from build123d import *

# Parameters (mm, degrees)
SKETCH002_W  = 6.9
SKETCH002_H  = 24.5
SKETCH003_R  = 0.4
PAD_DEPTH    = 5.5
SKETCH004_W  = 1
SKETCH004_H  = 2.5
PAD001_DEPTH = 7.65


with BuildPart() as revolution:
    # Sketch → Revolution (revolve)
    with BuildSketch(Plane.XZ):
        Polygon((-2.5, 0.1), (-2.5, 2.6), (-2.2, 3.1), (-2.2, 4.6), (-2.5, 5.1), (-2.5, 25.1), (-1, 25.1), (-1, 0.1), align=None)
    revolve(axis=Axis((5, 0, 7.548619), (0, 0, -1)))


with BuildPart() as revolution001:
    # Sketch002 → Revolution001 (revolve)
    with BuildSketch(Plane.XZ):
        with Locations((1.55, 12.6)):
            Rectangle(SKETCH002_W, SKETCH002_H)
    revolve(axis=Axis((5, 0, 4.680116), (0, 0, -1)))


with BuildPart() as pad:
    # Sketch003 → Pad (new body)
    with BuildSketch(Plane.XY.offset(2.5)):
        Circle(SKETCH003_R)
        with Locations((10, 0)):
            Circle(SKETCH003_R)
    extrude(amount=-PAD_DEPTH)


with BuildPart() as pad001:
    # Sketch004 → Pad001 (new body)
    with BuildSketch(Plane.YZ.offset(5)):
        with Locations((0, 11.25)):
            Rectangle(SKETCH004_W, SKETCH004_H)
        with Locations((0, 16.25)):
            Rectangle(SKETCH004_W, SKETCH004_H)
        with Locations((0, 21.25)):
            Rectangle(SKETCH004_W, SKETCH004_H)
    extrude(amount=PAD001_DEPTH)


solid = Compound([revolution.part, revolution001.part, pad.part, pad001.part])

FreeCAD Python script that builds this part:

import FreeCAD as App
import Part
import Sketcher
from FreeCAD import Vector


def add_polygon(sketch, points):
    """Adds a closed chain of lines whose ends are joined by coincident constraints."""
    first, n = sketch.GeometryCount, len(points)
    for a, b in zip(points, points[1:] + points[:1]):
        sketch.addGeometry(Part.LineSegment(App.Vector(*a, 0), App.Vector(*b, 0)), False)
    for i in range(n):
        sketch.addConstraint(Sketcher.Constraint("Coincident", first + i, 2, first + (i + 1) % n, 1))

doc = App.newDocument("Part")
body = doc.addObject("PartDesign::Body", "Body")

# Sketch on XZ plane
sketch1 = body.newObject("Sketcher::SketchObject", "Sketch")
sketch1.AttachmentSupport = (doc.getObject("XZ_Plane"), [""])
sketch1.MapMode = "FlatFace"
add_polygon(sketch1, [(-2.5, 2.6), (-2.5, 0.1), (-1, 0.1), (-1, 25.1), (-2.5, 25.1), (-2.5, 5.1), (-2.2, 4.6), (-2.2, 3.1)])  # lines 0-7
sketch1.addGeometry(Part.LineSegment(Vector(5, 25.1, 0), Vector(5, 0.1, 0)), True)  # axis
sketch1.addConstraint(Sketcher.Constraint("Vertical", 0))
sketch1.addConstraint(Sketcher.Constraint("Horizontal", 1))
sketch1.addConstraint(Sketcher.Constraint("Vertical", 2))
sketch1.addConstraint(Sketcher.Constraint("Horizontal", 3))
sketch1.addConstraint(Sketcher.Constraint("Vertical", 4))
sketch1.addConstraint(Sketcher.Constraint("Vertical", 6))
sketch1.addConstraint(Sketcher.Constraint("Vertical", 8))
sketch1.addConstraint(Sketcher.Constraint("Horizontal", 3, 2, 8, 1))
sketch1.addConstraint(Sketcher.Constraint("Horizontal", 1, 2, 8, 2))
sketch1.addConstraint(Sketcher.Constraint("Vertical", 0, 2, 3, 2))
sketch1.addConstraint(Sketcher.Constraint("Equal", 3, 6))
sketch1.addConstraint(Sketcher.Constraint("Equal", 5, 7))
sketch1.addConstraint(Sketcher.Constraint("DistanceY", 2, 1, 2, 2, 25.0))
sketch1.addConstraint(Sketcher.Constraint("DistanceY", 4, 2, 4, 1, 20.0))
sketch1.addConstraint(Sketcher.Constraint("DistanceX", 1, 1, 1, 2, 1.5))
sketch1.addConstraint(Sketcher.Constraint("DistanceY", 0, 2, 0, 1, 2.5))
sketch1.addConstraint(Sketcher.Constraint("DistanceX", 1, 2, -1, 1, 1.0))
sketch1.addConstraint(Sketcher.Constraint("DistanceX", -1, 1, 8, 1, 5.0))
sketch1.addConstraint(Sketcher.Constraint("DistanceY", -1, 1, 0, 2, 0.1))
sketch1.addConstraint(Sketcher.Constraint("DistanceX", 5, 2, -1, 1, 2.2))
revolution = body.newObject("PartDesign::Revolution", "Revolution")
revolution.Profile = sketch1
revolution.ReferenceAxis = (sketch1, ["Axis0"])
revolution.Angle = 360
body2 = doc.addObject("PartDesign::Body", "Body001")

# Sketch on XZ plane
sketch2 = body2.newObject("Sketcher::SketchObject", "Sketch001")
sketch2.AttachmentSupport = (doc.getObject("XZ_Plane001"), [""])
sketch2.MapMode = "FlatFace"
add_polygon(sketch2, [(-2, 25), (-2, 0), (5, 0), (5, 25)])  # lines 0-3
sketch2.addGeometry(Part.LineSegment(Vector(5, 25, 0), Vector(5, 0, 0)), True)  # axis
sketch2.addConstraint(Sketcher.Constraint("Vertical", 0))
sketch2.addConstraint(Sketcher.Constraint("Horizontal", 1))
sketch2.addConstraint(Sketcher.Constraint("Vertical", 2))
sketch2.addConstraint(Sketcher.Constraint("Horizontal", 3))
sketch2.addConstraint(Sketcher.Constraint("Vertical", 4))
sketch2.addConstraint(Sketcher.Constraint("Coincident", 4, 1, 2, 2))
sketch2.addConstraint(Sketcher.Constraint("Horizontal", 0, 2, 4, 2))
sketch2.addConstraint(Sketcher.Constraint("DistanceX", 1, 1, 1, 2, 6.9))
sketch2.addConstraint(Sketcher.Constraint("DistanceY", 0, 2, 0, 1, 24.5))
sketch2.addConstraint(Sketcher.Constraint("DistanceX", -1, 1, 1, 2, 5.0))
sketch2.addConstraint(Sketcher.Constraint("DistanceY", -1, 1, 0, 2, 0.35))
revolution2 = body2.newObject("PartDesign::Revolution", "Revolution001")
revolution2.Profile = sketch2
revolution2.ReferenceAxis = (sketch2, ["Axis0"])
revolution2.Angle = 360
body3 = doc.addObject("PartDesign::Body", "Body002")
body3.AllowCompound = True

# Sketch on XY plane
sketch3 = body3.newObject("Sketcher::SketchObject", "Sketch002")
sketch3.AttachmentSupport = (doc.getObject("XY_Plane002"), [""])
sketch3.MapMode = "FlatFace"
sketch3.AttachmentOffset = App.Placement(Vector(0, 0, 2.5), App.Rotation())
sketch3.addGeometry(Part.Circle(Vector(0, 0, 0), Vector(0, 0, 1), 0.4), False)
sketch3.addGeometry(Part.Circle(Vector(10, 0, 0), Vector(0, 0, 1), 0.4), False)
sketch3.addConstraint(Sketcher.Constraint("Coincident", 0, 3, -1, 1))
sketch3.addConstraint(Sketcher.Constraint("Equal", 0, 1))
sketch3.addConstraint(Sketcher.Constraint("PointOnObject", 1, 3, -1))
sketch3.addConstraint(Sketcher.Constraint("Diameter", 0, 0.8))
sketch3.addConstraint(Sketcher.Constraint("DistanceX", -1, 1, 1, 3, 10.0))
pad1 = body3.newObject("PartDesign::Pad", "Pad")
pad1.Profile = sketch3
pad1.Length = 5.5
pad1.Reversed = True
body4 = doc.addObject("PartDesign::Body", "Body003")
body4.AllowCompound = True

# Sketch on YZ plane
sketch4 = body4.newObject("Sketcher::SketchObject", "Sketch003")
sketch4.AttachmentSupport = (doc.getObject("YZ_Plane003"), [""])
sketch4.MapMode = "FlatFace"
sketch4.AttachmentOffset = App.Placement(Vector(0, 0, 5), App.Rotation())
add_polygon(sketch4, [(-0.5, 12.5), (-0.5, 10), (0.5, 10), (0.5, 12.5)])  # lines 0-3
add_polygon(sketch4, [(-0.5, 17.5), (-0.5, 15), (0.5, 15), (0.5, 17.5)])  # lines 4-7
add_polygon(sketch4, [(-0.5, 22.5), (-0.5, 20), (0.5, 20), (0.5, 22.5)])  # lines 8-11
sketch4.addConstraint(Sketcher.Constraint("Vertical", 0))
sketch4.addConstraint(Sketcher.Constraint("Horizontal", 1))
sketch4.addConstraint(Sketcher.Constraint("Vertical", 2))
sketch4.addConstraint(Sketcher.Constraint("Horizontal", 3))
sketch4.addConstraint(Sketcher.Constraint("Vertical", 4))
sketch4.addConstraint(Sketcher.Constraint("Horizontal", 5))
sketch4.addConstraint(Sketcher.Constraint("Vertical", 6))
sketch4.addConstraint(Sketcher.Constraint("Horizontal", 7))
sketch4.addConstraint(Sketcher.Constraint("Vertical", 8))
sketch4.addConstraint(Sketcher.Constraint("Horizontal", 9))
sketch4.addConstraint(Sketcher.Constraint("Vertical", 10))
sketch4.addConstraint(Sketcher.Constraint("Horizontal", 11))
sketch4.addConstraint(Sketcher.Constraint("Vertical", 3, 2, 4, 2))
sketch4.addConstraint(Sketcher.Constraint("Vertical", 2, 2, 5, 2))
sketch4.addConstraint(Sketcher.Constraint("Vertical", 7, 2, 8, 2))
sketch4.addConstraint(Sketcher.Constraint("Vertical", 6, 2, 9, 2))
sketch4.addConstraint(Sketcher.Constraint("Equal", 2, 4))
sketch4.addConstraint(Sketcher.Constraint("Equal", 6, 8))
sketch4.addConstraint(Sketcher.Constraint("DistanceX", 1, 1, 1, 2, 1.0))
sketch4.addConstraint(Sketcher.Constraint("DistanceY", 0, 2, 0, 1, 2.5))
sketch4.addConstraint(Sketcher.Constraint("DistanceY", -1, 1, 0, 2, 10.0))
sketch4.addConstraint(Sketcher.Constraint("DistanceY", -1, 1, 4, 2, 15.0))
sketch4.addConstraint(Sketcher.Constraint("DistanceY", -1, 1, 8, 2, 20.0))
sketch4.addConstraint(Sketcher.Constraint("DistanceX", 0, 2, -1, 1, 0.5))
pad2 = body4.newObject("PartDesign::Pad", "Pad001")
pad2.Profile = sketch4
pad2.Length = 7.65

doc.recompute()
